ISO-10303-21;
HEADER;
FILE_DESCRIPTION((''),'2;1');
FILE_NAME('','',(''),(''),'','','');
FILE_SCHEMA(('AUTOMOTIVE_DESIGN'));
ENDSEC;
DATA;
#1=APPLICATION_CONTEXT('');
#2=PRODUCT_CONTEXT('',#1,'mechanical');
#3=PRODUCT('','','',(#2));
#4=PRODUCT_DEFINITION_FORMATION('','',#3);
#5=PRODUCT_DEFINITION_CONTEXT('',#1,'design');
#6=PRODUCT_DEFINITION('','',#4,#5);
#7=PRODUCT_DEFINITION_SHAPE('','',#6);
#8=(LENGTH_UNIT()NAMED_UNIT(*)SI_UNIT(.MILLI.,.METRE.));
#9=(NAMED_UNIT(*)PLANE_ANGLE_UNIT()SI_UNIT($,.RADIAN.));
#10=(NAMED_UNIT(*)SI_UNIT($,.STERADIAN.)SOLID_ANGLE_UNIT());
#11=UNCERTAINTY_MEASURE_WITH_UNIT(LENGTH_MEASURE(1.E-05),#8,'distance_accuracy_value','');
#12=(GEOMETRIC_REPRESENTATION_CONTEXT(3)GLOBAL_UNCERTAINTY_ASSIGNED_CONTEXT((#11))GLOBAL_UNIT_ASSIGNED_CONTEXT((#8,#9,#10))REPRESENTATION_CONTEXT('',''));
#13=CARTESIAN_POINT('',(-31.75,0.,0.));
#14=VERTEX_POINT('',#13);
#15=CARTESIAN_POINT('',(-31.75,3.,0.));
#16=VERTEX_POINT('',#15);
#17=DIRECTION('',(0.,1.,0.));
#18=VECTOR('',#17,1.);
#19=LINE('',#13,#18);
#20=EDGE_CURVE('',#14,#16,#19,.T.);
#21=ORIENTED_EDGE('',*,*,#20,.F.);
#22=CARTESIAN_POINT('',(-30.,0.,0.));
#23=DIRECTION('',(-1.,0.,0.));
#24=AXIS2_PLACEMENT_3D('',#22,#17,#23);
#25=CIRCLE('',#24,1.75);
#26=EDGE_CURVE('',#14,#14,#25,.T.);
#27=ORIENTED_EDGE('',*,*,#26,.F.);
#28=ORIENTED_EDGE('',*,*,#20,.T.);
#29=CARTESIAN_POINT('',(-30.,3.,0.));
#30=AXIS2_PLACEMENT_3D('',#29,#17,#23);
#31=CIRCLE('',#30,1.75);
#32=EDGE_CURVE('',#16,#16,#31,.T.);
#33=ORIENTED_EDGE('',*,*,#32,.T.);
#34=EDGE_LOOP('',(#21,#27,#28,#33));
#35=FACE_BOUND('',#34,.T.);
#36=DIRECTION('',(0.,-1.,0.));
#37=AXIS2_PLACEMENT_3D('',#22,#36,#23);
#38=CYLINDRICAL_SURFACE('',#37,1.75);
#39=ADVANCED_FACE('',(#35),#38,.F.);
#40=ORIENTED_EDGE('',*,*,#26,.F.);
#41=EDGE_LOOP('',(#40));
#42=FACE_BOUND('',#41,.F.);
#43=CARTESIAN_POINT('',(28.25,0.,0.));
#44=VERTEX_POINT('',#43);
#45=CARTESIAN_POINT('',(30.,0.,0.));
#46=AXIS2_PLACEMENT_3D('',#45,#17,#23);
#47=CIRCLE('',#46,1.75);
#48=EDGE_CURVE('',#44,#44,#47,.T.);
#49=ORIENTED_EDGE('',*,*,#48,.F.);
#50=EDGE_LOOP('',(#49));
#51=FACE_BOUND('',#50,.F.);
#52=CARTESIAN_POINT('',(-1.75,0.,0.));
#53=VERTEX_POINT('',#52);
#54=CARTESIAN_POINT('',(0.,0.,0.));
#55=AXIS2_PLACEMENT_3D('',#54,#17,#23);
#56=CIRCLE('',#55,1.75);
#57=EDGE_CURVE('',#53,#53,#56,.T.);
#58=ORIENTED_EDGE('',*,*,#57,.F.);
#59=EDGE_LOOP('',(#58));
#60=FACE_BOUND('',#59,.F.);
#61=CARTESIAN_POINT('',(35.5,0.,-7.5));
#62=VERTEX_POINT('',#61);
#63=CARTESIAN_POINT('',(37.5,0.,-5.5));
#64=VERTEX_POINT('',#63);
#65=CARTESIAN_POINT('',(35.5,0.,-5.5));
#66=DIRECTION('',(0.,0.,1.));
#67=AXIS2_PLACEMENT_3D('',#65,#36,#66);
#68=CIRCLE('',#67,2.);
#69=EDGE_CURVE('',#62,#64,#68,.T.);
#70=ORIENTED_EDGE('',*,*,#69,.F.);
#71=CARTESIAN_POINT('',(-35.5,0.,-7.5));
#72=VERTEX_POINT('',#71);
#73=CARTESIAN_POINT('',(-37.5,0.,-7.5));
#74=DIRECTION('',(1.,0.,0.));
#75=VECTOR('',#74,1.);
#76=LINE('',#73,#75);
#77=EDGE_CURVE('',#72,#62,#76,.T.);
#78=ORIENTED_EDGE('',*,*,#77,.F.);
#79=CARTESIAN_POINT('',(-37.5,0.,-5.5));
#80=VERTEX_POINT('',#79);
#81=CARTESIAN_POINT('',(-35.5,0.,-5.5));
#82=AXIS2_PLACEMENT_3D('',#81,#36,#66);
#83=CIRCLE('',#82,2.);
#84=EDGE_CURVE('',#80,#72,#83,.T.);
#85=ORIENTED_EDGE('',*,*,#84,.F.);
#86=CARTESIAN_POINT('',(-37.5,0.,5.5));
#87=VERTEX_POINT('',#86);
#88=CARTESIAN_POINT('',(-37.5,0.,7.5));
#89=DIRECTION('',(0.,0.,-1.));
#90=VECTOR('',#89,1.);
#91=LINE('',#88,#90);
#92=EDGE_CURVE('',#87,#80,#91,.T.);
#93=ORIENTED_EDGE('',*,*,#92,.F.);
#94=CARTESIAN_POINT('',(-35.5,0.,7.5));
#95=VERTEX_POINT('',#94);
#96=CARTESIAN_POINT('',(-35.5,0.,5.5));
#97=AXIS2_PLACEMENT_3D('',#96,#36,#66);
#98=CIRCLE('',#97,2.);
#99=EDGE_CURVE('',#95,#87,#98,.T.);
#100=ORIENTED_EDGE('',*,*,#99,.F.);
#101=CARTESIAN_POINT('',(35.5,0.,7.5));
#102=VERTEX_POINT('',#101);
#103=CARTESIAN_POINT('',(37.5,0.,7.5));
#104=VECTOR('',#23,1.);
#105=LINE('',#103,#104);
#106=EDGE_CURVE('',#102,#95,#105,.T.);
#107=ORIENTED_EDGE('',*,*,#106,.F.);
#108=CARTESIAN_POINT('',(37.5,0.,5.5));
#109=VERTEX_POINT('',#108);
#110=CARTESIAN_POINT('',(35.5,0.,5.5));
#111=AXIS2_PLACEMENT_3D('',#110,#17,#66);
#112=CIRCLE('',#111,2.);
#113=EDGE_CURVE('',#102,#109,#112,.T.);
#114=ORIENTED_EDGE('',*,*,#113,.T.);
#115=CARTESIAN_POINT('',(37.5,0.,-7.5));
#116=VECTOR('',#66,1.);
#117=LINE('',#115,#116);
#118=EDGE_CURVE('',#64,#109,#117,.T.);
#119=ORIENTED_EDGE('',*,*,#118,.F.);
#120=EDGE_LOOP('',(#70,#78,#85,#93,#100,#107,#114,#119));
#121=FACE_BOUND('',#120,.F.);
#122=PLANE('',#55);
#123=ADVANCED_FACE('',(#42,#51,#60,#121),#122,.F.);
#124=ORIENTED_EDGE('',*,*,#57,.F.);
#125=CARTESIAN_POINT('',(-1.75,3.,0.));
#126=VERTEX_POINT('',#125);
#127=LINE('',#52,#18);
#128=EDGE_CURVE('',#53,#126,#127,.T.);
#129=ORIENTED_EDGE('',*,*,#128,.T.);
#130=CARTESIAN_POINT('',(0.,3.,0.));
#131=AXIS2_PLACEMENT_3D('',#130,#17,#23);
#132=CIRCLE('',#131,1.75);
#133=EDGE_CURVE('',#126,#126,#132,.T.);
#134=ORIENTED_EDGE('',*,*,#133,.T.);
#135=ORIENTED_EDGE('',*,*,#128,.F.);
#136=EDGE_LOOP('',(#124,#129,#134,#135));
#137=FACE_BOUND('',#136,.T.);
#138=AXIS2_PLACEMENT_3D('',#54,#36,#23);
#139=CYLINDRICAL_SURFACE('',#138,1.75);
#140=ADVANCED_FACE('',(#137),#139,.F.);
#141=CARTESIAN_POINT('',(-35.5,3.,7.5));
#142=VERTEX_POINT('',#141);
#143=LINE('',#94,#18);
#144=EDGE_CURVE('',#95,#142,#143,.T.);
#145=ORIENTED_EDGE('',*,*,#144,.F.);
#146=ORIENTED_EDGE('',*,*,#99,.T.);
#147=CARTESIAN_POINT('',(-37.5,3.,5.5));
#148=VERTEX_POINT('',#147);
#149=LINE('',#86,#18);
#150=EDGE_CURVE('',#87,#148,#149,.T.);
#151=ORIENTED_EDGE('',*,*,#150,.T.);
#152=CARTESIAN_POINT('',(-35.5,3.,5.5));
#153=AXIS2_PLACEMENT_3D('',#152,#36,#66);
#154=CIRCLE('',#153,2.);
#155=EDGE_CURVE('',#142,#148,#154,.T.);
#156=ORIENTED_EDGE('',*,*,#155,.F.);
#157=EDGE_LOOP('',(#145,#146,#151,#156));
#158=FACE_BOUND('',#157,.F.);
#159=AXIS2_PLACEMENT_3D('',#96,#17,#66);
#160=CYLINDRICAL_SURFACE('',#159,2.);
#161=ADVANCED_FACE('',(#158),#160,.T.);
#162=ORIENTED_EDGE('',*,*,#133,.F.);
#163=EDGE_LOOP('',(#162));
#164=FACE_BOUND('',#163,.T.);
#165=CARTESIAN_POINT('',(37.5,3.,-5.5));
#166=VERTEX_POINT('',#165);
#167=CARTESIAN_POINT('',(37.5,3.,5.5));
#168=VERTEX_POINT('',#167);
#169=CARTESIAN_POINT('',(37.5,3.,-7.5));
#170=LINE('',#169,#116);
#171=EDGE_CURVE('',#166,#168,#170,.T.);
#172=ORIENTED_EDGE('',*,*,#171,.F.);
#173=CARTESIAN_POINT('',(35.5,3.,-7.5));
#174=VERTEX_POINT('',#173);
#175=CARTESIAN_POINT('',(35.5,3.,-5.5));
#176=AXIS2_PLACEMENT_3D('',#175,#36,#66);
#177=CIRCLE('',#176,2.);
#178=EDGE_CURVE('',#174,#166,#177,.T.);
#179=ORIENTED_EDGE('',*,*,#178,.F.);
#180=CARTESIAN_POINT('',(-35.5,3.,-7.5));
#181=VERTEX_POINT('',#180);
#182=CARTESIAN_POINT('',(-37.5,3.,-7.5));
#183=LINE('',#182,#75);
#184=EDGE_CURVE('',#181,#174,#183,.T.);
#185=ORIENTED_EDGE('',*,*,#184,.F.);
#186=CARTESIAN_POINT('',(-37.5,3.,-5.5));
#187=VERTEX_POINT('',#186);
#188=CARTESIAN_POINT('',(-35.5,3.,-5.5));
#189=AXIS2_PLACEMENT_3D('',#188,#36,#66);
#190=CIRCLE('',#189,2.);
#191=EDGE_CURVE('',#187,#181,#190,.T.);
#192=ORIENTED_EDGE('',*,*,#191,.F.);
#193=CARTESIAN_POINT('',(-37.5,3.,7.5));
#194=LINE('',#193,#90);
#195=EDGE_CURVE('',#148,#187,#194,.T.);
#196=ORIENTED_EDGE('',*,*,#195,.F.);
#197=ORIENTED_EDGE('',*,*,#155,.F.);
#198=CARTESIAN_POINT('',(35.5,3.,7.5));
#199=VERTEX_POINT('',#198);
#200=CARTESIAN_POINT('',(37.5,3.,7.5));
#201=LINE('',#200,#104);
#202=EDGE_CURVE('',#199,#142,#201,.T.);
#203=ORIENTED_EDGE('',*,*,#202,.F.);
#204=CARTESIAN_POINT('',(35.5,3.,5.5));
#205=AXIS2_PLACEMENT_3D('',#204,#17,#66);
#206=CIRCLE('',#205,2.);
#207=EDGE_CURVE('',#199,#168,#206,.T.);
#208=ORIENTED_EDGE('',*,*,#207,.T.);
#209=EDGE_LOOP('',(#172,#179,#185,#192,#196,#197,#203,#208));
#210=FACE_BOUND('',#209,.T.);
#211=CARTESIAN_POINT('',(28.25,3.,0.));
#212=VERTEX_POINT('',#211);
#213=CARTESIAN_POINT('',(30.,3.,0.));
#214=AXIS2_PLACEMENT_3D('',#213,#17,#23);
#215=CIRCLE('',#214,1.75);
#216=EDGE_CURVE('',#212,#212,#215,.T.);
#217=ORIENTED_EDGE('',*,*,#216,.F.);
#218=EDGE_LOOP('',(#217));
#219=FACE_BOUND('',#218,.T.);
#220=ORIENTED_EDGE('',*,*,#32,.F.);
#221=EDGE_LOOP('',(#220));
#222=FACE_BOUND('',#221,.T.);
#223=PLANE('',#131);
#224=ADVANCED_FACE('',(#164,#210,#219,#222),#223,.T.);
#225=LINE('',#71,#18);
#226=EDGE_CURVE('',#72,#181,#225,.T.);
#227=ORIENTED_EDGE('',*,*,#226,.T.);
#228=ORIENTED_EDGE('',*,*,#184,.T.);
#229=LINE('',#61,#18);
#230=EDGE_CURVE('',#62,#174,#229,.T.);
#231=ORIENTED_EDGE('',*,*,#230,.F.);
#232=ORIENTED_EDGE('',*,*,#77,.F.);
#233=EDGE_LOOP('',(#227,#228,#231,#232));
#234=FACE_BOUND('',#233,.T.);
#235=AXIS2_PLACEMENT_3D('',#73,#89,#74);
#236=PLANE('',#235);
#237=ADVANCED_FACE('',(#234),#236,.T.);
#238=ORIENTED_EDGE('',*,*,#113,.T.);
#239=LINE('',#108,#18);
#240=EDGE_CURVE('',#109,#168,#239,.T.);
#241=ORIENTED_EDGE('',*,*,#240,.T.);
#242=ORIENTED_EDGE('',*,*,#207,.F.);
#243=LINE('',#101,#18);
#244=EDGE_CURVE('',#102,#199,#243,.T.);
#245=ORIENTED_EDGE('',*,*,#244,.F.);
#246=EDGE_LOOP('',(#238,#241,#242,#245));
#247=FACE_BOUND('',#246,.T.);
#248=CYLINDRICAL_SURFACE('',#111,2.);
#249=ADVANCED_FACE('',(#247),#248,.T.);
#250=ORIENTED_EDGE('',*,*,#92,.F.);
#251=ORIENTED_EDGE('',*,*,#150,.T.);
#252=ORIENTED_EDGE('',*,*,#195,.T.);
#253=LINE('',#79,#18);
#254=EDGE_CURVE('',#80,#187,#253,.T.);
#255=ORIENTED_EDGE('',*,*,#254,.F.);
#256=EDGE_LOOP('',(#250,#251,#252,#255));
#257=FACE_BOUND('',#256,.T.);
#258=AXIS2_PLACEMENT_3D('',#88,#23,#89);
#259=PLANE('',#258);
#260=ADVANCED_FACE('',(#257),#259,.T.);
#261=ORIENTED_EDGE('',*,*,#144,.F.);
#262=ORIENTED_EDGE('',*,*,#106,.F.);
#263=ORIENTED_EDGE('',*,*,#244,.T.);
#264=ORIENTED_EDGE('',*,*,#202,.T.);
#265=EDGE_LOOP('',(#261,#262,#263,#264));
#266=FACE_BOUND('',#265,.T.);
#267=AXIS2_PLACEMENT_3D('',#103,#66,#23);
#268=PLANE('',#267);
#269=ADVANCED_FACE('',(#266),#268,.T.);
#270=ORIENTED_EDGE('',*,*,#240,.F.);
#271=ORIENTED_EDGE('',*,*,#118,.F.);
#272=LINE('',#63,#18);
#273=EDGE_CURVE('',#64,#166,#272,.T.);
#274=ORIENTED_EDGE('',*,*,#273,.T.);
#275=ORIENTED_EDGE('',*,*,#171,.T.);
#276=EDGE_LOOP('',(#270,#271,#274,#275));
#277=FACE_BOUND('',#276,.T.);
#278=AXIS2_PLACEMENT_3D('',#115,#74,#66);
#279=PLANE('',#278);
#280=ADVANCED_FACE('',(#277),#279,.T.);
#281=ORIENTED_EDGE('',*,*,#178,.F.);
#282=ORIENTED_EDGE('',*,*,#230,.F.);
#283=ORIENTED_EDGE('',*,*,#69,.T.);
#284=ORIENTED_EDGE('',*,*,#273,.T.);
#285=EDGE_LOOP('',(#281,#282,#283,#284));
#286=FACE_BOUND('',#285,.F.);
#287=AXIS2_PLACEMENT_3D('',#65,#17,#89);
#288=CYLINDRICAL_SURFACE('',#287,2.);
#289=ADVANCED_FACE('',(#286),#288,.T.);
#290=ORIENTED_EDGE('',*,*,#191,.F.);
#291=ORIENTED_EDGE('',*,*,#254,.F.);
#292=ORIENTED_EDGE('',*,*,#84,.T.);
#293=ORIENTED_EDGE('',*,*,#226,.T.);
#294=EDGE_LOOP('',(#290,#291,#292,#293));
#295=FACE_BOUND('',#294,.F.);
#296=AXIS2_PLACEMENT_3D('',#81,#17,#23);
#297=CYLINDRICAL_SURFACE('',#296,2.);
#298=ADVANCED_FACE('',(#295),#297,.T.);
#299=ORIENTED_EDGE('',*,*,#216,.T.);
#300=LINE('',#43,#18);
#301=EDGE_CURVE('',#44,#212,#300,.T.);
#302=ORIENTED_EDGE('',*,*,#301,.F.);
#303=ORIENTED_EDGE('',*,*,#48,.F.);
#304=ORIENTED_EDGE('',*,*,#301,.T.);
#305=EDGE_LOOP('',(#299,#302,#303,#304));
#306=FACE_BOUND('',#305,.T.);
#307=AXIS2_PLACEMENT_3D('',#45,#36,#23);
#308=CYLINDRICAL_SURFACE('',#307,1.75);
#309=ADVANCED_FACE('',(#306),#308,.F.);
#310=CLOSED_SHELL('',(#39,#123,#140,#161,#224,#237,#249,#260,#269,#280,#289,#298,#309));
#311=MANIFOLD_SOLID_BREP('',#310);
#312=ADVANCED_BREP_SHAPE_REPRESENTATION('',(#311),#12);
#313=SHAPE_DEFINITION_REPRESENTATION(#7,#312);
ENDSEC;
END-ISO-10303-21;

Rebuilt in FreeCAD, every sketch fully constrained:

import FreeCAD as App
import Part
import Sketcher


def edges_at(feature, points):
    """Names of the edges that pass closest to the given points."""
    edges = feature.Shape.Edges
    near = lambda p: min(range(len(edges)), key=lambda i: edges[i].distToShape(Part.Vertex(*p))[0])
    return sorted({f"Edge{near(p) + 1}" for p in points})


def add_polygon(sketch, points):
    """Adds a closed chain of lines whose ends are joined by coincident constraints."""
    first, n = sketch.GeometryCount, len(points)
    for a, b in zip(points, points[1:] + points[:1]):
        sketch.addGeometry(Part.LineSegment(App.Vector(*a, 0), App.Vector(*b, 0)), False)
    for i in range(n):
        sketch.addConstraint(Sketcher.Constraint("Coincident", first + i, 2, first + (i + 1) % n, 1))

doc = App.newDocument("Part")
params = doc.addObject("Spreadsheet::Sheet", "Params")
for row, (alias, value) in enumerate([
    ("sketch1_diameter", "3.5 mm"),
    ("sketch1_width", "75 mm"),
    ("sketch1_height", "15 mm"),
    ("pad1_length", "3 mm"),
    ("fillet_radius", "2 mm"),
], start=1):
    params.set(f"A{row}", alias)
    params.set(f"B{row}", "=" + value)
    params.setAlias(f"B{row}", alias)

body = doc.addObject("PartDesign::Body", "Body")

# Sketch on XZ plane
sketch1 = body.newObject("Sketcher::SketchObject", "Sketch")
sketch1.AttachmentSupport = (doc.getObject("XZ_Plane"), [""])
sketch1.MapMode = "FlatFace"
add_polygon(sketch1, [(-37.5, 7.5), (37.5, 7.5), (37.5, -7.5), (-37.5, -7.5)])  # lines 0-3
sketch1.addGeometry(Part.Circle(App.Vector(30, 0, 0), App.Vector(0, 0, 1), 1.75), False)  # 4
sketch1.addGeometry(Part.Circle(App.Vector(0, 0, 0), App.Vector(0, 0, 1), 1.75), False)  # 5
sketch1.addGeometry(Part.Circle(App.Vector(-30, 0, 0), App.Vector(0, 0, 1), 1.75), False)  # 6
sketch1.addConstraint([
    Sketcher.Constraint("Horizontal", 0),
    Sketcher.Constraint("Vertical", 1),
    Sketcher.Constraint("Horizontal", 2),
    Sketcher.Constraint("Vertical", 3),
    Sketcher.Constraint("Coincident", 5, 3, -1, 1),
    Sketcher.Constraint("Equal", 4, 5),
    Sketcher.Constraint("Equal", 5, 6),
    Sketcher.Constraint("Symmetric", 4, 3, 6, 3, -1, 1),
    Sketcher.Constraint("Symmetric", 0, 2, 2, 2, -1, 1),
    Sketcher.Constraint("PointOnObject", 4, 3, -1),
    Sketcher.Constraint("Diameter", 4, 3.5),
    Sketcher.Constraint("DistanceX", 0, 1, 0, 2, 75.0),
    Sketcher.Constraint("DistanceY", 1, 2, 1, 1, 15.0),
    Sketcher.Constraint("DistanceX", -1, 1, 4, 3, 30.0),
])
sketch1.setExpression("Constraints[14]", "Params.sketch1_diameter")
sketch1.setExpression("Constraints[15]", "Params.sketch1_width")
sketch1.setExpression("Constraints[16]", "Params.sketch1_height")
pad1 = body.newObject("PartDesign::Pad", "Pad")
pad1.Profile = sketch1
pad1.setExpression("Length", "Params.pad1_length")
pad1.Reversed = True
doc.recompute()

fillet = body.newObject("PartDesign::Fillet", "Fillet")
fillet.Base = (pad1, edges_at(pad1, [
    (-37.5, 1.5, -7.5),
    (-37.5, 1.5, 7.5),
    (37.5, 1.5, 7.5),
    (37.5, 1.5, -7.5),
]))
fillet.setExpression("Radius", "Params.fillet_radius")

doc.recompute()
